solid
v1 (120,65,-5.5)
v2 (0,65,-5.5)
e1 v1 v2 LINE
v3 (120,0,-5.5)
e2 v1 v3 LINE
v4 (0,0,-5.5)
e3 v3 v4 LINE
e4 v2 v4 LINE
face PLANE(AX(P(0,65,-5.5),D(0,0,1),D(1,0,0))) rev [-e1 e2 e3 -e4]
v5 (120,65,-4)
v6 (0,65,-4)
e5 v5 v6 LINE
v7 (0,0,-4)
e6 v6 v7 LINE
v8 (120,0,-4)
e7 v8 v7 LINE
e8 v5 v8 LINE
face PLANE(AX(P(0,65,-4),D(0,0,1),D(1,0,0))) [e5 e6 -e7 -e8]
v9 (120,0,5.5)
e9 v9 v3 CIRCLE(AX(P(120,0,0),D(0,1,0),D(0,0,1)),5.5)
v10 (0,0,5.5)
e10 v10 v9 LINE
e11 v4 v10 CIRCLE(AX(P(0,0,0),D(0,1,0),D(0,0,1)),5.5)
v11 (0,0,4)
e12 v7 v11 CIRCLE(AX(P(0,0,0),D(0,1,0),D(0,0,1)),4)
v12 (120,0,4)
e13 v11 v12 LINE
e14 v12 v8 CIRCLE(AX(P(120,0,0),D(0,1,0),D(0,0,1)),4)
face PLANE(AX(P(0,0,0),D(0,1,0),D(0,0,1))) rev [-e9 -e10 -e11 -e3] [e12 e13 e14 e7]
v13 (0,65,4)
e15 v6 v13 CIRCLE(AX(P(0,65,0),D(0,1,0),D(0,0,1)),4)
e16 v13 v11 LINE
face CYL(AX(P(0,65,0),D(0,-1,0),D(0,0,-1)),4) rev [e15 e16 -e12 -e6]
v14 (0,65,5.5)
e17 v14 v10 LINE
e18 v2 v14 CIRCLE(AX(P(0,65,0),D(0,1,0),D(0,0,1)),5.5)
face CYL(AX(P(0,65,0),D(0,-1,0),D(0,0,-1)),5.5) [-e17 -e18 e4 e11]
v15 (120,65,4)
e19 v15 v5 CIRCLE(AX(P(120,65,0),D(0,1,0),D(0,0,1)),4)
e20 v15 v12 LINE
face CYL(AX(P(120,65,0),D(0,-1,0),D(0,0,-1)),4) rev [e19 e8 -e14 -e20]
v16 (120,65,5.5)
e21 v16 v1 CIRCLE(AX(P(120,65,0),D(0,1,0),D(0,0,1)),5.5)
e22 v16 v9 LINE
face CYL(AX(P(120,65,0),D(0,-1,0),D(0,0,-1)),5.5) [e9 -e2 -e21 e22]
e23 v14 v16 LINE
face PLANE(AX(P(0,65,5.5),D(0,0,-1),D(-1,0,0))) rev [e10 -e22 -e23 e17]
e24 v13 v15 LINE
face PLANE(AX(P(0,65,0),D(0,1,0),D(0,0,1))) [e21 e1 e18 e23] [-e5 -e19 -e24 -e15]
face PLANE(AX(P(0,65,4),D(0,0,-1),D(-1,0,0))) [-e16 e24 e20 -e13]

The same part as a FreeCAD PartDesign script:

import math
import FreeCAD as App
import Part
import Sketcher

V = App.Vector
Q = App.Units.Quantity

doc = App.newDocument("Part")
body = doc.addObject("PartDesign::Body", "Body")

# Sketch on XZ plane
sketch1 = body.newObject("Sketcher::SketchObject", "Sketch")
sketch1.AttachmentSupport = (doc.getObject("XZ_Plane"), [""])
sketch1.MapMode = "FlatFace"
sketch1.addGeometry([
    Part.LineSegment(V(120, -5.5, 0), V(0, -5.5, 0)),  # 0
    Part.ArcOfCircle(Part.Circle(V(0, 0, 0), V(0, 0, 1), 5.5), math.radians(90), math.radians(270)),  # 1
    Part.LineSegment(V(0, 5.5, 0), V(120, 5.5, 0)),  # 2
    Part.ArcOfCircle(Part.Circle(V(120, 0, 0), V(0, 0, 1), 5.5), math.radians(-90), math.radians(90)),  # 3
    Part.LineSegment(V(0, -4, 0), V(120, -4, 0)),  # 4
    Part.ArcOfCircle(Part.Circle(V(120, 0, 0), V(0, 0, 1), 4), math.radians(-90), math.radians(90)),  # 5
    Part.LineSegment(V(120, 4, 0), V(0, 4, 0)),  # 6
    Part.ArcOfCircle(Part.Circle(V(0, 0, 0), V(0, 0, 1), 4), math.radians(90), math.radians(270)),  # 7
], False)
sketch1.addConstraint([
    Sketcher.Constraint("Tangent", 0, 2, 1, 2),
    Sketcher.Constraint("Tangent", 1, 1, 2, 1),
    Sketcher.Constraint("Tangent", 2, 2, 3, 2),
    Sketcher.Constraint("Tangent", 3, 1, 0, 1),
    Sketcher.Constraint("Tangent", 4, 2, 5, 1),
    Sketcher.Constraint("Tangent", 5, 2, 6, 1),
    Sketcher.Constraint("Tangent", 6, 2, 7, 1),
    Sketcher.Constraint("Tangent", 7, 2, 4, 1),
    Sketcher.Constraint("Horizontal", 0),
    Sketcher.Constraint("Horizontal", 2),
    Sketcher.Constraint("Horizontal", 4),
    Sketcher.Constraint("Horizontal", 6),
    Sketcher.Constraint("Coincident", 1, 3, -1, 1),
    Sketcher.Constraint("Coincident", 7, 3, -1, 1),
    Sketcher.Constraint("Vertical", 5, 3, 2, 2),
    Sketcher.Constraint("Radius", 5, Q("4 mm")),
    Sketcher.Constraint("Radius", 1, Q("5.5 mm")),
    Sketcher.Constraint("DistanceX", 0, 2, 0, 1, Q("120 mm")),
])
pad1 = body.newObject("PartDesign::Pad", "Pad")
pad1.Profile = sketch1
pad1.Length = 65
pad1.Reversed = True

doc.recompute()
